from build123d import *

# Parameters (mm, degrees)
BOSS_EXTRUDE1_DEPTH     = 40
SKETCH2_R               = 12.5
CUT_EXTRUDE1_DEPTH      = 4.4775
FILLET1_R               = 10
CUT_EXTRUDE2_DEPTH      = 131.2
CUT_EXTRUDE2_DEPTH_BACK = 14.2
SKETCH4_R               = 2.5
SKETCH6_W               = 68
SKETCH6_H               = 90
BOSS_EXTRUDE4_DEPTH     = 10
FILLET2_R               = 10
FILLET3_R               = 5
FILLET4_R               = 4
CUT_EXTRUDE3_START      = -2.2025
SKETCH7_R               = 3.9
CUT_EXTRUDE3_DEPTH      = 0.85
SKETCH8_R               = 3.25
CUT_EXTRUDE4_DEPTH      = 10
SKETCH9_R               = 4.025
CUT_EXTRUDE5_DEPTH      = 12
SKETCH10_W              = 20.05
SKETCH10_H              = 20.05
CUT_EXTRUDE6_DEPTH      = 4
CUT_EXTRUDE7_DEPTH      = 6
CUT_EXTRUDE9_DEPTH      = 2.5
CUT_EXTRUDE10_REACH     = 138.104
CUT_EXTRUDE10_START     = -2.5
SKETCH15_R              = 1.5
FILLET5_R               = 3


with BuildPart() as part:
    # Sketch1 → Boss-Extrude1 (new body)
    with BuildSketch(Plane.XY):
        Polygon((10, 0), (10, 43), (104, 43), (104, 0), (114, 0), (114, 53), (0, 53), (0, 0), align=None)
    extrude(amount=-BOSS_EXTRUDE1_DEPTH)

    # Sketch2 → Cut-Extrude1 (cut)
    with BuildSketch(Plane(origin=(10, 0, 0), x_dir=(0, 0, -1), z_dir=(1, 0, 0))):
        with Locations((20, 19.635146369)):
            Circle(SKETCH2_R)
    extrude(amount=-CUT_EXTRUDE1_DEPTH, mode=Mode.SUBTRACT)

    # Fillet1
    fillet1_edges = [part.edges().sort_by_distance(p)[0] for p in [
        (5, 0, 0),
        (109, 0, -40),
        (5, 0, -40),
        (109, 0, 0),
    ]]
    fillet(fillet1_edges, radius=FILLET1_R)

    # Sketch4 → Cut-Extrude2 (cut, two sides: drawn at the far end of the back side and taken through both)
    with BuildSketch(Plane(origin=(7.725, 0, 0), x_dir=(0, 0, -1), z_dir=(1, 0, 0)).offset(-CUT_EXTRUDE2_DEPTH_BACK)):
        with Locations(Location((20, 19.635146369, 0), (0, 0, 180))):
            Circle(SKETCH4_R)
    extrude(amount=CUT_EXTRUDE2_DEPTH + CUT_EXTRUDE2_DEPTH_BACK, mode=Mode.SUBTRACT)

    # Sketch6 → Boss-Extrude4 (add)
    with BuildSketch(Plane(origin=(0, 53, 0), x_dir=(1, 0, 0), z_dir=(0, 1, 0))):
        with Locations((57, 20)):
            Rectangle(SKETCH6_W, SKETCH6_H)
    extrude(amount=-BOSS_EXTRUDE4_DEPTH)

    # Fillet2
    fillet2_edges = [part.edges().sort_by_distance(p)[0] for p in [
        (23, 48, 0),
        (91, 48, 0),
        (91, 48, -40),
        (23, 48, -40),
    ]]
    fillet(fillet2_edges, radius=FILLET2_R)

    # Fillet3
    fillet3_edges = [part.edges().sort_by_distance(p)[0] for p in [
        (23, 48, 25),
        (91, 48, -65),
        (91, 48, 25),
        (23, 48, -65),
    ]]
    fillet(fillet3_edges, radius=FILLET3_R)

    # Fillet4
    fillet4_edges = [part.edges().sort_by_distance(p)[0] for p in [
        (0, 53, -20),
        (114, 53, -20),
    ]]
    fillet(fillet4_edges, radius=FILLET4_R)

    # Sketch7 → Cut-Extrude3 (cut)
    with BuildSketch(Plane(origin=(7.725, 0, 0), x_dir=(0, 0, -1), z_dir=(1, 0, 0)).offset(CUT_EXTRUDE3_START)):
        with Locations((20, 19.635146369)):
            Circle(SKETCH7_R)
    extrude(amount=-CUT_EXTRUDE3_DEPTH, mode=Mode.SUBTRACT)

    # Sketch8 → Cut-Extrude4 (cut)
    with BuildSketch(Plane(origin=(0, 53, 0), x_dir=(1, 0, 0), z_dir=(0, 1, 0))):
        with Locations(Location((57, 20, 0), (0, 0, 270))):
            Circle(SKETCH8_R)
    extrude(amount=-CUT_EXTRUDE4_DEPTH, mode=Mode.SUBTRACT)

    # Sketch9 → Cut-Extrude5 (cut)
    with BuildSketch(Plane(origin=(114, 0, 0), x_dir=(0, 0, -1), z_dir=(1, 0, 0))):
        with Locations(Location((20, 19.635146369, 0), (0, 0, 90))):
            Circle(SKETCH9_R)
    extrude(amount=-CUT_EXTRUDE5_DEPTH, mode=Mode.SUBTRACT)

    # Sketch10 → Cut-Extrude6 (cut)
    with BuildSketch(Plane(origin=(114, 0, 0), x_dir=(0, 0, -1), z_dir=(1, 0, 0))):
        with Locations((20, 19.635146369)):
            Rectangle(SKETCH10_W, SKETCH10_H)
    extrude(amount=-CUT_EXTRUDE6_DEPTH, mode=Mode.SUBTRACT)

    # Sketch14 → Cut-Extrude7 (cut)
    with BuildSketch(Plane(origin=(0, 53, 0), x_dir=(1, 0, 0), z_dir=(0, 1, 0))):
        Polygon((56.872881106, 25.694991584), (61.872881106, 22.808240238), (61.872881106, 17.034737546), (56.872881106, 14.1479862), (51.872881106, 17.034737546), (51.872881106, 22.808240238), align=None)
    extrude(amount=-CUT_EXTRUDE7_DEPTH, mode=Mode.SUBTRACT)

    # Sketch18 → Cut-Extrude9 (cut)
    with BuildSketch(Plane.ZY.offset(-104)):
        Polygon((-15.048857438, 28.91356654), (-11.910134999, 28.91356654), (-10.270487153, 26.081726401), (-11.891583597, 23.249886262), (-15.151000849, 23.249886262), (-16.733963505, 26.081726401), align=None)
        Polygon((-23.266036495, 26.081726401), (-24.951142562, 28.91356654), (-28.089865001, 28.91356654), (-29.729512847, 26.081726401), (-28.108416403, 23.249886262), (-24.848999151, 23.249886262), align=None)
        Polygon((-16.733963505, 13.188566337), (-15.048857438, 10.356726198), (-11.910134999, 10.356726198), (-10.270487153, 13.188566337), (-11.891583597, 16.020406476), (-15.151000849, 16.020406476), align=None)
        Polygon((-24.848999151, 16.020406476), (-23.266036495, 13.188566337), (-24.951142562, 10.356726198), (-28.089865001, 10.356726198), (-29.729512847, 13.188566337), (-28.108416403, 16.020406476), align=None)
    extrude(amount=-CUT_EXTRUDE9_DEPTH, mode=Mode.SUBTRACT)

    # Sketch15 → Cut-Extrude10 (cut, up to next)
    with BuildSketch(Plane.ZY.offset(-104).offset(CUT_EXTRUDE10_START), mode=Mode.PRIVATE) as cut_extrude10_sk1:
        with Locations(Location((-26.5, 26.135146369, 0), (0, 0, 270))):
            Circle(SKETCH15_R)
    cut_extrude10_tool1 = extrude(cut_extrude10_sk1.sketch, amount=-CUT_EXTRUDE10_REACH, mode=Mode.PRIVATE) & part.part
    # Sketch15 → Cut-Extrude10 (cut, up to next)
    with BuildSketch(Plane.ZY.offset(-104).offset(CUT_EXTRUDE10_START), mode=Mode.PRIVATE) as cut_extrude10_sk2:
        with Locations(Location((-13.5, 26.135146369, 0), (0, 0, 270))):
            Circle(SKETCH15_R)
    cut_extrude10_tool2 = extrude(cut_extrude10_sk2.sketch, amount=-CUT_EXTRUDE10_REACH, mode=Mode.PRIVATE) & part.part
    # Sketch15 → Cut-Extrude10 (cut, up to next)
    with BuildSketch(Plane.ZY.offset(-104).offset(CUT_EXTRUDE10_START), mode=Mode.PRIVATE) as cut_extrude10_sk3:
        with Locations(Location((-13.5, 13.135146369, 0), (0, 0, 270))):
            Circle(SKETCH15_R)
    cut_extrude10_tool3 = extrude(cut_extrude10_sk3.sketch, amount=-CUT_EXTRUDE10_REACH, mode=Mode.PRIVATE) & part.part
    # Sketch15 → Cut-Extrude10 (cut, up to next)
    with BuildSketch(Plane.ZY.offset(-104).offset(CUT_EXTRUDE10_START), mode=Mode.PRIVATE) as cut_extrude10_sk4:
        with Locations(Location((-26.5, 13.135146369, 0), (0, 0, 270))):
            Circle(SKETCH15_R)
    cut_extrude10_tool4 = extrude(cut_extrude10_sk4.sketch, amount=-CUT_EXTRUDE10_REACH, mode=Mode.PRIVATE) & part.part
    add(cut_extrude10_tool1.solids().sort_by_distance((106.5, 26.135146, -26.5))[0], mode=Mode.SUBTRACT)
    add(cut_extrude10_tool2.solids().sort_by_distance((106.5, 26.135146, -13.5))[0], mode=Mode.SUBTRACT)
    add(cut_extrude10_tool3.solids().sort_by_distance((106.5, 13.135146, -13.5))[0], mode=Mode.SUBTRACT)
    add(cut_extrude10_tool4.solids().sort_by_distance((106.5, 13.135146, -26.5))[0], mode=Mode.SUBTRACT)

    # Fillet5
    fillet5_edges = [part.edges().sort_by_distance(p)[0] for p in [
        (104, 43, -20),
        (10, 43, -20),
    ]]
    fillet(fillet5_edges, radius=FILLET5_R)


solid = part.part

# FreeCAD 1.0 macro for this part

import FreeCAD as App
import Part
import Sketcher

V = App.Vector
Q = App.Units.Quantity


def edges_at(feature, points):
    """Names of the edges that pass closest to the given points."""
    edges = feature.Shape.Edges
    near = lambda p: min(range(len(edges)), key=lambda i: edges[i].distToShape(Part.Vertex(*p))[0])
    return sorted({f"Edge{near(p) + 1}" for p in points})


def add_polygon(sketch, points):
    """Adds a closed chain of lines whose ends are joined by coincident constraints."""
    first, n = sketch.GeometryCount, len(points)
    for a, b in zip(points, points[1:] + points[:1]):
        sketch.addGeometry(Part.LineSegment(App.Vector(*a, 0), App.Vector(*b, 0)), False)
    for i in range(n):
        sketch.addConstraint(Sketcher.Constraint("Coincident", first + i, 2, first + (i + 1) % n, 1))

doc = App.newDocument("Part")
body = doc.addObject("PartDesign::Body", "Body")

# Sketch on XY plane
sketch1 = body.newObject("Sketcher::SketchObject", "Sketch")
sketch1.AttachmentSupport = (doc.getObject("XY_Plane"), [""])
sketch1.MapMode = "FlatFace"
add_polygon(sketch1, [(10, 0), (10, 43), (104, 43), (104, 0), (114, 0), (114, 53), (0, 53), (0, 0)])  # lines 0-7
sketch1.addConstraint([
    Sketcher.Constraint("Vertical", 0),
    Sketcher.Constraint("Horizontal", 1),
    Sketcher.Constraint("Vertical", 2),
    Sketcher.Constraint("Horizontal", 3),
    Sketcher.Constraint("Vertical", 4),
    Sketcher.Constraint("Horizontal", 5),
    Sketcher.Constraint("Vertical", 6),
    Sketcher.Constraint("Horizontal", 7),
    Sketcher.Constraint("Coincident", 6, 2, -1, 1),
    Sketcher.Constraint("PointOnObject", 2, 2, -1),
    Sketcher.Constraint("Equal", 3, 7),
    Sketcher.Constraint("DistanceX", 1, 1, 1, 2, Q("94 mm")),
    Sketcher.Constraint("DistanceX", 3, 1, 3, 2, Q("10 mm")),
    Sketcher.Constraint("DistanceY", 0, 1, 0, 2, Q("43 mm")),
    Sketcher.Constraint("DistanceY", 4, 1, 4, 2, Q("53 mm")),
])
pad1 = body.newObject("PartDesign::Pad", "Pad")
pad1.Profile = sketch1
pad1.Length = 40
pad1.Reversed = True

# Sketch on YZ plane
sketch2 = body.newObject("Sketcher::SketchObject", "Sketch001")
sketch2.AttachmentSupport = (doc.getObject("YZ_Plane"), [""])
sketch2.MapMode = "FlatFace"
sketch2.AttachmentOffset = App.Placement(V(0, 0, 10), App.Rotation())
sketch2.addGeometry(Part.Circle(V(20, -20, 0), V(0, 0, 1), 12), False)
sketch2.addConstraint([
    Sketcher.Constraint("Diameter", 0, Q("25 mm")),
    Sketcher.Constraint("DistanceY", 0, 3, -1, 1, Q("20 mm")),
    Sketcher.Constraint("DistanceX", -1, 1, 0, 3, Q("19.635146 mm")),
])
pocket1 = body.newObject("PartDesign::Pocket", "Pocket")
pocket1.Profile = sketch2
pocket1.Length = 4.4775
doc.recompute()

fillet = body.newObject("PartDesign::Fillet", "Fillet")
fillet.Base = (pocket1, edges_at(pocket1, [
    (5, 0, 0),
    (109, 0, -40),
    (5, 0, -40),
    (109, 0, 0),
]))
fillet.Radius = 10

# Sketch on YZ plane
sketch3 = body.newObject("Sketcher::SketchObject", "Sketch002")
sketch3.AttachmentSupport = (doc.getObject("YZ_Plane"), [""])
sketch3.MapMode = "FlatFace"
sketch3.AttachmentOffset = App.Placement(V(0, 0, 7.725), App.Rotation())
sketch3.addGeometry(Part.Circle(V(19.6, -20, 0), V(0, 0, 1), 2.5), False)
sketch3.addConstraint([
    Sketcher.Constraint("Diameter", 0, Q("5 mm")),
    Sketcher.Constraint("DistanceY", 0, 3, -1, 1, Q("20 mm")),
    Sketcher.Constraint("DistanceX", -1, 1, 0, 3, Q("19.635146 mm")),
])
pocket2 = body.newObject("PartDesign::Pocket", "Pocket001")
pocket2.Profile = sketch3
pocket2.Type = "ThroughAll"
pocket2.Midplane = True

# Sketch on XZ plane
sketch4 = body.newObject("Sketcher::SketchObject", "Sketch003")
sketch4.AttachmentSupport = (doc.getObject("XZ_Plane"), [""])
sketch4.MapMode = "FlatFace"
sketch4.AttachmentOffset = App.Placement(V(0, 0, -53), App.Rotation())
add_polygon(sketch4, [(23, -65), (23, 25), (91, 25), (91, -65)])  # lines 0-3
sketch4.addConstraint([
    Sketcher.Constraint("Vertical", 0),
    Sketcher.Constraint("Horizontal", 1),
    Sketcher.Constraint("Vertical", 2),
    Sketcher.Constraint("Horizontal", 3),
    Sketcher.Constraint("DistanceX", 1, 1, 1, 2, Q("68 mm")),
    Sketcher.Constraint("DistanceY", 0, 1, 0, 2, Q("90 mm")),
    Sketcher.Constraint("DistanceX", -1, 1, 0, 2, Q("23 mm")),
    Sketcher.Constraint("DistanceY", -1, 1, 0, 2, Q("25 mm")),
])
pad2 = body.newObject("PartDesign::Pad", "Pad001")
pad2.Profile = sketch4
pad2.Length = 10
doc.recompute()

fillet2 = body.newObject("PartDesign::Fillet", "Fillet001")
fillet2.Base = (pad2, edges_at(pad2, [
    (23, 48, 0),
    (91, 48, 0),
    (91, 48, -40),
    (23, 48, -40),
]))
fillet2.Radius = 10
doc.recompute()

fillet3 = body.newObject("PartDesign::Fillet", "Fillet002")
fillet3.Base = (fillet2, edges_at(fillet2, [
    (23, 48, 25),
    (91, 48, -65),
    (91, 48, 25),
    (23, 48, -65),
]))
fillet3.Radius = 5
doc.recompute()

fillet4 = body.newObject("PartDesign::Fillet", "Fillet003")
fillet4.Base = (fillet3, edges_at(fillet3, [(0, 53, -20), (114, 53, -20)]))
fillet4.Radius = 4

# Sketch on YZ plane
sketch5 = body.newObject("Sketcher::SketchObject", "Sketch004")
sketch5.AttachmentSupport = (doc.getObject("YZ_Plane"), [""])
sketch5.MapMode = "FlatFace"
sketch5.AttachmentOffset = App.Placement(V(0, 0, 5.5225), App.Rotation())
sketch5.addGeometry(Part.Circle(V(19.6, -20, 0), V(0, 0, 1), 3.9), False)
sketch5.addConstraint([
    Sketcher.Constraint("Diameter", 0, Q("7.8 mm")),
    Sketcher.Constraint("DistanceY", 0, 3, -1, 1, Q("20 mm")),
    Sketcher.Constraint("DistanceX", -1, 1, 0, 3, Q("19.635146 mm")),
])
pocket3 = body.newObject("PartDesign::Pocket", "Pocket002")
pocket3.Profile = sketch5
pocket3.Length = 0.85

# Sketch on XZ plane
sketch6 = body.newObject("Sketcher::SketchObject", "Sketch005")
sketch6.AttachmentSupport = (doc.getObject("XZ_Plane"), [""])
sketch6.MapMode = "FlatFace"
sketch6.AttachmentOffset = App.Placement(V(0, 0, -53), App.Rotation())
sketch6.addGeometry(Part.Circle(V(57, -20, 0), V(0, 0, 1), 3.2), False)
sketch6.addConstraint([
    Sketcher.Constraint("Diameter", 0, Q("6.5 mm")),
    Sketcher.Constraint("DistanceX", -1, 1, 0, 3, Q("57 mm")),
    Sketcher.Constraint("DistanceY", 0, 3, -1, 1, Q("20 mm")),
])
pocket4 = body.newObject("PartDesign::Pocket", "Pocket003")
pocket4.Profile = sketch6
pocket4.Length = 10
pocket4.Reversed = True

# Sketch on YZ plane
sketch7 = body.newObject("Sketcher::SketchObject", "Sketch006")
sketch7.AttachmentSupport = (doc.getObject("YZ_Plane"), [""])
sketch7.MapMode = "FlatFace"
sketch7.AttachmentOffset = App.Placement(V(0, 0, 114), App.Rotation())
sketch7.addGeometry(Part.Circle(V(19.6, -20, 0), V(0, 0, 1), 4), False)
sketch7.addConstraint([
    Sketcher.Constraint("Diameter", 0, Q("8.05 mm")),
    Sketcher.Constraint("DistanceY", 0, 3, -1, 1, Q("20 mm")),
    Sketcher.Constraint("DistanceX", -1, 1, 0, 3, Q("19.635146 mm")),
])
pocket5 = body.newObject("PartDesign::Pocket", "Pocket004")
pocket5.Profile = sketch7
pocket5.Length = 12

# Sketch on YZ plane
sketch8 = body.newObject("Sketcher::SketchObject", "Sketch007")
sketch8.AttachmentSupport = (doc.getObject("YZ_Plane"), [""])
sketch8.MapMode = "FlatFace"
sketch8.AttachmentOffset = App.Placement(V(0, 0, 114), App.Rotation())
add_polygon(sketch8, [(30, -10), (10, -10), (10, -30), (30, -30)])  # lines 0-3
sketch8.addConstraint([
    Sketcher.Constraint("Horizontal", 0),
    Sketcher.Constraint("Vertical", 1),
    Sketcher.Constraint("Horizontal", 2),
    Sketcher.Constraint("Vertical", 3),
    Sketcher.Constraint("Equal", 2, 1),
    Sketcher.Constraint("DistanceX", 0, 2, 0, 1, Q("20.05 mm")),
    Sketcher.Constraint("DistanceY", 0, 2, -1, 1, Q("9.975 mm")),
    Sketcher.Constraint("DistanceX", -1, 1, 0, 2, Q("9.610146 mm")),
])
pocket6 = body.newObject("PartDesign::Pocket", "Pocket005")
pocket6.Profile = sketch8
pocket6.Length = 4

# Sketch on XZ plane
sketch9 = body.newObject("Sketcher::SketchObject", "Sketch008")
sketch9.AttachmentSupport = (doc.getObject("XZ_Plane"), [""])
sketch9.MapMode = "FlatFace"
sketch9.AttachmentOffset = App.Placement(V(0, 0, -53), App.Rotation())
add_polygon(sketch9, [(62, -23), (57, -26), (52, -23), (52, -17), (57, -14), (62, -17)])  # lines 0-5
sketch9.addConstraint([
    Sketcher.Constraint("Vertical", 2),
    Sketcher.Constraint("Vertical", 5),
    Sketcher.Constraint("Parallel", 0, 3),
    Sketcher.Constraint("Parallel", 1, 4),
    Sketcher.Constraint("Horizontal", 2, 2, 4, 2),
    Sketcher.Constraint("Horizontal", 1, 2, 5, 2),
    Sketcher.Constraint("Vertical", 0, 2, 3, 2),
    Sketcher.Constraint("Angle", 0, Q("-150 deg")),
    Sketcher.Constraint("DistanceX", 1, 2, 0, 2, Q("5 mm")),
    Sketcher.Constraint("DistanceY", 2, 1, 2, 2, Q("5.773503 mm")),
    Sketcher.Constraint("DistanceX", -1, 1, 0, 2, Q("56.872881 mm")),
    Sketcher.Constraint("DistanceY", 0, 2, -1, 1, Q("25.694992 mm")),
])
pocket7 = body.newObject("PartDesign::Pocket", "Pocket006")
pocket7.Profile = sketch9
pocket7.Length = 6
pocket7.Reversed = True

# Sketch on YZ plane
sketch10 = body.newObject("Sketcher::SketchObject", "Sketch009")
sketch10.AttachmentSupport = (doc.getObject("YZ_Plane"), [""])
sketch10.MapMode = "FlatFace"
sketch10.AttachmentOffset = App.Placement(V(0, 0, 104), App.Rotation())
add_polygon(sketch10, [(28.9, -11.9), (28.9, -15), (26.1, -16.7), (23.2, -15.2), (23.2, -11.9), (26.1, -10.3)])  # lines 0-5
add_polygon(sketch10, [(26.1, -23.3), (28.9, -25), (28.9, -28.1), (26.1, -29.7), (23.2, -28.1), (23.2, -24.8)])  # lines 6-11
add_polygon(sketch10, [(13.2, -16.7), (10.4, -15), (10.4, -11.9), (13.2, -10.3), (16, -11.9), (16, -15.2)])  # lines 12-17
add_polygon(sketch10, [(13.2, -23.3), (16, -24.8), (16, -28.1), (13.2, -29.7), (10.4, -28.1), (10.4, -25)])  # lines 18-23
sketch10.addConstraint([
    Sketcher.Constraint("Vertical", 0),
    Sketcher.Constraint("Vertical", 3),
    Sketcher.Constraint("Vertical", 7),
    Sketcher.Constraint("Vertical", 10),
    Sketcher.Constraint("Vertical", 13),
    Sketcher.Constraint("Vertical", 16),
    Sketcher.Constraint("Vertical", 19),
    Sketcher.Constraint("Vertical", 22),
    Sketcher.Constraint("Parallel", 6, 12),
    Sketcher.Constraint("Parallel", 8, 14),
    Sketcher.Constraint("Parallel", 9, 15),
    Sketcher.Constraint("Parallel", 11, 17),
    Sketcher.Constraint("Parallel", 2, 18),
    Sketcher.Constraint("Parallel", 4, 20),
    Sketcher.Constraint("Parallel", 5, 21),
    Sketcher.Constraint("Parallel", 1, 23),
    Sketcher.Constraint("Horizontal", 0, 2, 12, 2),
    Sketcher.Constraint("Horizontal", 5, 2, 13, 2),
    Sketcher.Constraint("Horizontal", 4, 2, 14, 2),
    Sketcher.Constraint("Horizontal", 3, 2, 15, 2),
    Sketcher.Constraint("Horizontal", 2, 2, 16, 2),
    Sketcher.Constraint("Horizontal", 1, 2, 17, 2),
    Sketcher.Constraint("Horizontal", 10, 2, 18, 2),
    Sketcher.Constraint("Horizontal", 9, 2, 19, 2),
    Sketcher.Constraint("Horizontal", 8, 2, 20, 2),
    Sketcher.Constraint("Horizontal", 7, 2, 21, 2),
    Sketcher.Constraint("Horizontal", 6, 2, 22, 2),
    Sketcher.Constraint("Vertical", 1, 2, 4, 2),
    Sketcher.Constraint("Vertical", 5, 2, 6, 2),
    Sketcher.Constraint("Vertical", 4, 2, 8, 2),
    Sketcher.Constraint("Vertical", 3, 2, 9, 2),
    Sketcher.Constraint("Vertical", 8, 2, 11, 2),
    Sketcher.Constraint("Vertical", 14, 2, 17, 2),
    Sketcher.Constraint("Vertical", 16, 2, 18, 2),
    Sketcher.Constraint("Vertical", 17, 2, 20, 2),
    Sketcher.Constraint("Vertical", 13, 2, 21, 2),
    Sketcher.Constraint("Equal", 0, 7),
    Sketcher.Constraint("DistanceY", 2, 2, -1, 1, Q("15.151001 mm")),
    Sketcher.Constraint("DistanceY", 10, 2, -1, 1, Q("24.848999 mm")),
    Sketcher.Constraint("DistanceX", 12, 2, 1, 2, Q("15.725 mm")),
    Sketcher.Constraint("DistanceY", 7, 2, 1, 2, Q("11.355901 mm")),
    Sketcher.Constraint("Distance", 2, Q("3.244239 mm")),
    Sketcher.Constraint("Distance", 5, Q("3.272272 mm")),
    Sketcher.Constraint("DistanceY", 0, 2, 0, 1, Q("3.138722 mm")),
    Sketcher.Constraint("DistanceY", 3, 1, 3, 2, Q("3.259417 mm")),
    Sketcher.Constraint("DistanceX", 1, 2, 0, 2, Q("2.83184 mm")),
    Sketcher.Constraint("DistanceX", 2, 2, 1, 2, Q("2.83184 mm")),
    Sketcher.Constraint("DistanceX", -1, 1, 0, 2, Q("28.913567 mm")),
])
pocket8 = body.newObject("PartDesign::Pocket", "Pocket007")
pocket8.Profile = sketch10
pocket8.Length = 2.5
pocket8.Reversed = True

# Sketch on YZ plane
sketch11 = body.newObject("Sketcher::SketchObject", "Sketch010")
sketch11.AttachmentSupport = (doc.getObject("YZ_Plane"), [""])
sketch11.MapMode = "FlatFace"
sketch11.AttachmentOffset = App.Placement(V(0, 0, 106.5), App.Rotation())
sketch11.addGeometry(Part.Circle(V(26.1, -26.5, 0), V(0, 0, 1), 1.5), False)
sketch11.addConstraint([
    Sketcher.Constraint("Diameter", 0, Q("3 mm")),
    Sketcher.Constraint("DistanceY", 0, 3, -1, 1, Q("26.5 mm")),
    Sketcher.Constraint("DistanceX", -1, 1, 0, 3, Q("26.135146 mm")),
])
pocket9 = body.newObject("PartDesign::Pocket", "Pocket008")
pocket9.Profile = sketch11
pocket9.Type = "UpToFirst"
pocket9.Reversed = True

# Sketch on YZ plane
sketch12 = body.newObject("Sketcher::SketchObject", "Sketch011")
sketch12.AttachmentSupport = (doc.getObject("YZ_Plane"), [""])
sketch12.MapMode = "FlatFace"
sketch12.AttachmentOffset = App.Placement(V(0, 0, 106.5), App.Rotation())
sketch12.addGeometry(Part.Circle(V(26.1, -13.5, 0), V(0, 0, 1), 1.5), False)
sketch12.addConstraint([
    Sketcher.Constraint("Diameter", 0, Q("3 mm")),
    Sketcher.Constraint("DistanceY", 0, 3, -1, 1, Q("13.5 mm")),
    Sketcher.Constraint("DistanceX", -1, 1, 0, 3, Q("26.135146 mm")),
])
pocket10 = body.newObject("PartDesign::Pocket", "Pocket009")
pocket10.Profile = sketch12
pocket10.Type = "UpToFirst"
pocket10.Reversed = True

# Sketch on YZ plane
sketch13 = body.newObject("Sketcher::SketchObject", "Sketch012")
sketch13.AttachmentSupport = (doc.getObject("YZ_Plane"), [""])
sketch13.MapMode = "FlatFace"
sketch13.AttachmentOffset = App.Placement(V(0, 0, 106.5), App.Rotation())
sketch13.addGeometry(Part.Circle(V(13.1, -13.5, 0), V(0, 0, 1), 1.5), False)
sketch13.addConstraint([
    Sketcher.Constraint("Diameter", 0, Q("3 mm")),
    Sketcher.Constraint("DistanceY", 0, 3, -1, 1, Q("13.5 mm")),
    Sketcher.Constraint("DistanceX", -1, 1, 0, 3, Q("13.135146 mm")),
])
pocket11 = body.newObject("PartDesign::Pocket", "Pocket010")
pocket11.Profile = sketch13
pocket11.Type = "UpToFirst"
pocket11.Reversed = True

# Sketch on YZ plane
sketch14 = body.newObject("Sketcher::SketchObject", "Sketch013")
sketch14.AttachmentSupport = (doc.getObject("YZ_Plane"), [""])
sketch14.MapMode = "FlatFace"
sketch14.AttachmentOffset = App.Placement(V(0, 0, 106.5), App.Rotation())
sketch14.addGeometry(Part.Circle(V(13.1, -26.5, 0), V(0, 0, 1), 1.5), False)
sketch14.addConstraint([
    Sketcher.Constraint("Diameter", 0, Q("3 mm")),
    Sketcher.Constraint("DistanceY", 0, 3, -1, 1, Q("26.5 mm")),
    Sketcher.Constraint("DistanceX", -1, 1, 0, 3, Q("13.135146 mm")),
])
pocket12 = body.newObject("PartDesign::Pocket", "Pocket011")
pocket12.Profile = sketch14
pocket12.Type = "UpToFirst"
pocket12.Reversed = True
doc.recompute()

fillet5 = body.newObject("PartDesign::Fillet", "Fillet004")
fillet5.Base = (pocket12, edges_at(pocket12, [(104, 43, -20), (10, 43, -20)]))
fillet5.Radius = 3

doc.recompute()
